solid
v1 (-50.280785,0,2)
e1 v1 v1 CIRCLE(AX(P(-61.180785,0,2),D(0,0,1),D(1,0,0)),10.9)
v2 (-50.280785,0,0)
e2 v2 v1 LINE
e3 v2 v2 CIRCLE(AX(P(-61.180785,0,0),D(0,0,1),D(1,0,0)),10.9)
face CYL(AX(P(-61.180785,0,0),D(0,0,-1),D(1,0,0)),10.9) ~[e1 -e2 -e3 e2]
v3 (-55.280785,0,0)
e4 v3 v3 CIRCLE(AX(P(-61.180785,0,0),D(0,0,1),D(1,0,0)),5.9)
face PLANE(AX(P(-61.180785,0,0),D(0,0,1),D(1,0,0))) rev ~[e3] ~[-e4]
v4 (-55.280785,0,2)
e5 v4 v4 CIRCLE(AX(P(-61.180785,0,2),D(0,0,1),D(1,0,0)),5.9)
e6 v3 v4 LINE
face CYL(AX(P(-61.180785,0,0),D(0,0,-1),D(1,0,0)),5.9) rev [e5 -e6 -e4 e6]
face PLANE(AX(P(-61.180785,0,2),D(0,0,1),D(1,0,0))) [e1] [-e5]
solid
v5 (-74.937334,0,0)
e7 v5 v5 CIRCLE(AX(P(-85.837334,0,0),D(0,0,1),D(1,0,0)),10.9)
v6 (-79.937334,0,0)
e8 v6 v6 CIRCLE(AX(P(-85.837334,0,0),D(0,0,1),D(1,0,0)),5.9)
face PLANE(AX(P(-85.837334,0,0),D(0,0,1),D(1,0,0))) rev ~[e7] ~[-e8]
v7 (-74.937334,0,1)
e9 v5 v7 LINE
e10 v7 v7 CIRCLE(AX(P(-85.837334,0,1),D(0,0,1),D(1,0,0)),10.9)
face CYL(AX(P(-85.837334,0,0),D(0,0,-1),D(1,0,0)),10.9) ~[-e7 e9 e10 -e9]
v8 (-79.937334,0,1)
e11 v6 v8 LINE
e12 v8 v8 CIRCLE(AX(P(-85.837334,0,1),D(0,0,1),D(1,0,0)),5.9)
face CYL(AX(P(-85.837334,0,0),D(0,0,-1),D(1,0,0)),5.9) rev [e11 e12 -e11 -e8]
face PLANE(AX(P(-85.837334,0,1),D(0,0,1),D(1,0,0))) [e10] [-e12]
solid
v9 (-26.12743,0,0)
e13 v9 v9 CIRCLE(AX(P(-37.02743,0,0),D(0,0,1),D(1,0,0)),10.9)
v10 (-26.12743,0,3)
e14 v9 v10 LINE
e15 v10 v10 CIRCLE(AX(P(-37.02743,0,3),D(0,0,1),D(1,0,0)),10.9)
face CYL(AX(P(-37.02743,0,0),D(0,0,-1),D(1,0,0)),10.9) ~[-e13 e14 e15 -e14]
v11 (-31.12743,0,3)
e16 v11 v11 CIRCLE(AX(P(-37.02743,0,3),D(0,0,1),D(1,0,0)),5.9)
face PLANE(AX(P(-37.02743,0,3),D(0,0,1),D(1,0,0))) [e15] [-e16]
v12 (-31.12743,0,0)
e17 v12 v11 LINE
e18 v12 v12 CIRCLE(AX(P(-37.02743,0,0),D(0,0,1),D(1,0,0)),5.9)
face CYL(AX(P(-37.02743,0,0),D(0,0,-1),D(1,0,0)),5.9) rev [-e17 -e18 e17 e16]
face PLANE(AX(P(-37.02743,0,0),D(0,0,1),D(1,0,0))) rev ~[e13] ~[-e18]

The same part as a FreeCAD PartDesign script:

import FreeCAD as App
import Part
import Sketcher

V = App.Vector
Q = App.Units.Quantity

doc = App.newDocument("Part")
params = doc.addObject("Spreadsheet::Sheet", "Params")
for row, (alias, value) in enumerate([
    ("sketch1_diameter", "21.8 mm"),
    ("sketch1_diameter2", "11.8 mm"),
    ("pad1_length", "1 mm"),
    ("sketch2_diameter", "21.8 mm"),
    ("sketch2_diameter2", "11.8 mm"),
    ("pad2_length", "2 mm"),
    ("sketch3_diameter", "21.8 mm"),
    ("sketch3_diameter2", "11.8 mm"),
    ("pad3_length", "3 mm"),
], start=1):
    params.set(f"A{row}", alias)
    params.set(f"B{row}", "=" + value)
    params.setAlias(f"B{row}", alias)

body = doc.addObject("PartDesign::Body", "Body")

# Sketch on XY plane
sketch1 = body.newObject("Sketcher::SketchObject", "Sketch")
sketch1.AttachmentSupport = (doc.getObject("XY_Plane"), [""])
sketch1.MapMode = "FlatFace"
sketch1.addGeometry([
    Part.Circle(V(-86, 0, 0), V(0, 0, 1), 11),
    Part.Circle(V(-86, 0, 0), V(0, 0, 1), 6),
], False)
sketch1.addConstraint([
    Sketcher.Constraint("Coincident", 1, 3, 0, 3),
    Sketcher.Constraint("PointOnObject", 0, 3, -1),
    Sketcher.Constraint("Diameter", 0, Q("21.8 mm")),
    Sketcher.Constraint("Diameter", 1, Q("11.8 mm")),
    Sketcher.Constraint("DistanceX", 0, 3, -1, 1, Q("85.837334 mm")),
])
sketch1.setExpression("Constraints[2]", "Params.sketch1_diameter")
sketch1.setExpression("Constraints[3]", "Params.sketch1_diameter2")
pad1 = body.newObject("PartDesign::Pad", "Pad")
pad1.Profile = sketch1
pad1.setExpression("Length", "Params.pad1_length")
body2 = doc.addObject("PartDesign::Body", "Body001")

# Sketch on XY plane
sketch2 = body2.newObject("Sketcher::SketchObject", "Sketch001")
sketch2.AttachmentSupport = (doc.getObject("XY_Plane001"), [""])
sketch2.MapMode = "FlatFace"
sketch2.addGeometry([
    Part.Circle(V(-61, 0, 0), V(0, 0, 1), 11),
    Part.Circle(V(-61, 0, 0), V(0, 0, 1), 6),
], False)
sketch2.addConstraint([
    Sketcher.Constraint("Coincident", 1, 3, 0, 3),
    Sketcher.Constraint("PointOnObject", 0, 3, -1),
    Sketcher.Constraint("Diameter", 0, Q("21.8 mm")),
    Sketcher.Constraint("Diameter", 1, Q("11.8 mm")),
    Sketcher.Constraint("DistanceX", 0, 3, -1, 1, Q("61.180785 mm")),
])
sketch2.setExpression("Constraints[2]", "Params.sketch2_diameter")
sketch2.setExpression("Constraints[3]", "Params.sketch2_diameter2")
pad2 = body2.newObject("PartDesign::Pad", "Pad001")
pad2.Profile = sketch2
pad2.setExpression("Length", "Params.pad2_length")
body3 = doc.addObject("PartDesign::Body", "Body002")

# Sketch on XY plane
sketch3 = body3.newObject("Sketcher::SketchObject", "Sketch002")
sketch3.AttachmentSupport = (doc.getObject("XY_Plane002"), [""])
sketch3.MapMode = "FlatFace"
sketch3.addGeometry([
    Part.Circle(V(-37, 0, 0), V(0, 0, 1), 11),
    Part.Circle(V(-37, 0, 0), V(0, 0, 1), 6),
], False)
sketch3.addConstraint([
    Sketcher.Constraint("Coincident", 1, 3, 0, 3),
    Sketcher.Constraint("PointOnObject", 0, 3, -1),
    Sketcher.Constraint("Diameter", 0, Q("21.8 mm")),
    Sketcher.Constraint("Diameter", 1, Q("11.8 mm")),
    Sketcher.Constraint("DistanceX", 0, 3, -1, 1, Q("37.02743 mm")),
])
sketch3.setExpression("Constraints[2]", "Params.sketch3_diameter")
sketch3.setExpression("Constraints[3]", "Params.sketch3_diameter2")
pad3 = body3.newObject("PartDesign::Pad", "Pad002")
pad3.Profile = sketch3
pad3.setExpression("Length", "Params.pad3_length")

doc.recompute()
